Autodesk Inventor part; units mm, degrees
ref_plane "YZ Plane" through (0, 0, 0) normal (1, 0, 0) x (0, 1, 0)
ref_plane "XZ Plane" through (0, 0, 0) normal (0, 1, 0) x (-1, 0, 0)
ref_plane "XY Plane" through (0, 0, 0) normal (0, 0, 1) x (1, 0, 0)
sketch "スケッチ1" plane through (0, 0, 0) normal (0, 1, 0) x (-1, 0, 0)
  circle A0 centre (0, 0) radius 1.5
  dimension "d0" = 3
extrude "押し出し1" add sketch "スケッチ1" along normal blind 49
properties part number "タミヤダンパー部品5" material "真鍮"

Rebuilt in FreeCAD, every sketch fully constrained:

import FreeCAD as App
import Part
import Sketcher
from FreeCAD import Vector
Q = App.Units.Quantity

doc = App.newDocument("Part")
params = doc.addObject("Spreadsheet::Sheet", "Params")
for row, (alias, value) in enumerate([
    ("sketch1_diameter", "3 mm"),
    ("pad1_length", "49 mm"),
], start=1):
    params.set(f"A{row}", alias)
    params.set(f"B{row}", "=" + value)
    params.setAlias(f"B{row}", alias)

body = doc.addObject("PartDesign::Body", "Body")

# Sketch on XZ plane
sketch1 = doc.addObject("Sketcher::SketchObject", "Sketch")
body.addObject(sketch1)
sketch1.AttachmentSupport = (doc.XZ_Plane, [""])
sketch1.MapMode = "FlatFace"
sketch1.addGeometry(Part.Circle(Vector(0, 0, 0), Vector(0, 0, 1), 1.5), False)
sketch1.addConstraint(Sketcher.Constraint("Coincident", 0, 3, -1, 1))
sketch1.addConstraint(Sketcher.Constraint("Diameter", 0, Q("3 mm")))
sketch1.setExpression("Constraints[1]", "Params.sketch1_diameter")
pad1 = doc.addObject("PartDesign::Pad", "Pad")
body.addObject(pad1)
pad1.Profile = sketch1
pad1.setExpression("Length", "Params.pad1_length")
pad1.Reversed = True

doc.recompute()
